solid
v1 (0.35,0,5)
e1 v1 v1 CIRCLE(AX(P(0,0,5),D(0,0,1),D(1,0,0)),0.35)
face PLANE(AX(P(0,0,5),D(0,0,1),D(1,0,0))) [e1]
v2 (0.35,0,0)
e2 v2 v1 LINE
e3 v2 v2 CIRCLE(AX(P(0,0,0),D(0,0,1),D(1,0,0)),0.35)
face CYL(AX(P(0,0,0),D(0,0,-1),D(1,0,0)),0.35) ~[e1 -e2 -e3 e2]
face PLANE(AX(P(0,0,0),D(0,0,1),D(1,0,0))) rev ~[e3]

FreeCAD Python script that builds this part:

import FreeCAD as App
import Part
import Sketcher
Q = App.Units.Quantity

doc = App.newDocument("Part")
body = doc.addObject("PartDesign::Body", "Body")

sketch1 = body.newObject("Sketcher::SketchObject", "Sketch")
sketch1.AttachmentSupport = (doc.getObject("XY_Plane"), [""])
sketch1.MapMode = "FlatFace"
sketch1.addGeometry(Part.Circle(App.Vector(0, 0, 0), App.Vector(0, 0, 1), 0.35), False)
sketch1.addConstraint([
    Sketcher.Constraint("Coincident", 0, 3, -1, 1),
    Sketcher.Constraint("Diameter", 0, Q("0.7 mm")),
])
pad1 = body.newObject("PartDesign::Pad", "Pad")
pad1.Profile = sketch1
pad1.Length = 5

doc.recompute()
